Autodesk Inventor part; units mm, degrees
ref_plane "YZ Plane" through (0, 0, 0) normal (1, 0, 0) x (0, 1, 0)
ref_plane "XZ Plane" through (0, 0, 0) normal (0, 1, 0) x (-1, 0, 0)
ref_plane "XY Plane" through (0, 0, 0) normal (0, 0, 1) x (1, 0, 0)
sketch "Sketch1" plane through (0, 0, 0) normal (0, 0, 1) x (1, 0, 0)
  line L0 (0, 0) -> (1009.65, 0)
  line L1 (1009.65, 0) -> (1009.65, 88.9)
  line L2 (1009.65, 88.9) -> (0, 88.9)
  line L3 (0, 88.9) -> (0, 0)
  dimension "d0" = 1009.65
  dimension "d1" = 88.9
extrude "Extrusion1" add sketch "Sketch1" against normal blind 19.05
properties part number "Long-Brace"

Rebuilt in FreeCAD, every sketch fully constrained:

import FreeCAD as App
import Part
import Sketcher

V = App.Vector
Q = App.Units.Quantity

doc = App.newDocument("Part")
params = doc.addObject("Spreadsheet::Sheet", "Params")
for row, (alias, value) in enumerate([
    ("sketch1_height", "3.5 in"),
    ("sketch1_width", "39.75 in"),
    ("pad1_length", "0.75 in"),
], start=1):
    params.set(f"A{row}", alias)
    params.set(f"B{row}", "=" + value)
    params.setAlias(f"B{row}", alias)

body = doc.addObject("PartDesign::Body", "Body")

# Sketch on XY plane
sketch1 = body.newObject("Sketcher::SketchObject", "Sketch")
sketch1.AttachmentSupport = (doc.getObject("XY_Plane"), [""])
sketch1.MapMode = "FlatFace"
sketch1.addGeometry([
    Part.LineSegment(V(0, 89, 0), V(0, 0, 0)),
    Part.LineSegment(V(0, 0, 0), V(1010, 0, 0)),
    Part.LineSegment(V(1010, 0, 0), V(1010, 89, 0)),
    Part.LineSegment(V(1010, 89, 0), V(0, 89, 0)),
], False)
sketch1.addConstraint([
    Sketcher.Constraint("Coincident", 0, 2, 1, 1),
    Sketcher.Constraint("Coincident", 1, 2, 2, 1),
    Sketcher.Constraint("Coincident", 2, 2, 3, 1),
    Sketcher.Constraint("Coincident", 3, 2, 0, 1),
    Sketcher.Constraint("Vertical", 0),
    Sketcher.Constraint("Horizontal", 1),
    Sketcher.Constraint("Vertical", 2),
    Sketcher.Constraint("Horizontal", 3),
    Sketcher.Constraint("Coincident", 0, 2, -1, 1),
    Sketcher.Constraint("DistanceY", 0, 2, 0, 1, Q("3.5 in")),
    Sketcher.Constraint("DistanceX", 1, 1, 1, 2, Q("39.75 in")),
])
sketch1.setExpression("Constraints[9]", "Params.sketch1_height")
sketch1.setExpression("Constraints[10]", "Params.sketch1_width")
pad1 = body.newObject("PartDesign::Pad", "Pad")
pad1.Profile = sketch1
pad1.setExpression("Length", "Params.pad1_length")
pad1.Reversed = True

doc.recompute()
